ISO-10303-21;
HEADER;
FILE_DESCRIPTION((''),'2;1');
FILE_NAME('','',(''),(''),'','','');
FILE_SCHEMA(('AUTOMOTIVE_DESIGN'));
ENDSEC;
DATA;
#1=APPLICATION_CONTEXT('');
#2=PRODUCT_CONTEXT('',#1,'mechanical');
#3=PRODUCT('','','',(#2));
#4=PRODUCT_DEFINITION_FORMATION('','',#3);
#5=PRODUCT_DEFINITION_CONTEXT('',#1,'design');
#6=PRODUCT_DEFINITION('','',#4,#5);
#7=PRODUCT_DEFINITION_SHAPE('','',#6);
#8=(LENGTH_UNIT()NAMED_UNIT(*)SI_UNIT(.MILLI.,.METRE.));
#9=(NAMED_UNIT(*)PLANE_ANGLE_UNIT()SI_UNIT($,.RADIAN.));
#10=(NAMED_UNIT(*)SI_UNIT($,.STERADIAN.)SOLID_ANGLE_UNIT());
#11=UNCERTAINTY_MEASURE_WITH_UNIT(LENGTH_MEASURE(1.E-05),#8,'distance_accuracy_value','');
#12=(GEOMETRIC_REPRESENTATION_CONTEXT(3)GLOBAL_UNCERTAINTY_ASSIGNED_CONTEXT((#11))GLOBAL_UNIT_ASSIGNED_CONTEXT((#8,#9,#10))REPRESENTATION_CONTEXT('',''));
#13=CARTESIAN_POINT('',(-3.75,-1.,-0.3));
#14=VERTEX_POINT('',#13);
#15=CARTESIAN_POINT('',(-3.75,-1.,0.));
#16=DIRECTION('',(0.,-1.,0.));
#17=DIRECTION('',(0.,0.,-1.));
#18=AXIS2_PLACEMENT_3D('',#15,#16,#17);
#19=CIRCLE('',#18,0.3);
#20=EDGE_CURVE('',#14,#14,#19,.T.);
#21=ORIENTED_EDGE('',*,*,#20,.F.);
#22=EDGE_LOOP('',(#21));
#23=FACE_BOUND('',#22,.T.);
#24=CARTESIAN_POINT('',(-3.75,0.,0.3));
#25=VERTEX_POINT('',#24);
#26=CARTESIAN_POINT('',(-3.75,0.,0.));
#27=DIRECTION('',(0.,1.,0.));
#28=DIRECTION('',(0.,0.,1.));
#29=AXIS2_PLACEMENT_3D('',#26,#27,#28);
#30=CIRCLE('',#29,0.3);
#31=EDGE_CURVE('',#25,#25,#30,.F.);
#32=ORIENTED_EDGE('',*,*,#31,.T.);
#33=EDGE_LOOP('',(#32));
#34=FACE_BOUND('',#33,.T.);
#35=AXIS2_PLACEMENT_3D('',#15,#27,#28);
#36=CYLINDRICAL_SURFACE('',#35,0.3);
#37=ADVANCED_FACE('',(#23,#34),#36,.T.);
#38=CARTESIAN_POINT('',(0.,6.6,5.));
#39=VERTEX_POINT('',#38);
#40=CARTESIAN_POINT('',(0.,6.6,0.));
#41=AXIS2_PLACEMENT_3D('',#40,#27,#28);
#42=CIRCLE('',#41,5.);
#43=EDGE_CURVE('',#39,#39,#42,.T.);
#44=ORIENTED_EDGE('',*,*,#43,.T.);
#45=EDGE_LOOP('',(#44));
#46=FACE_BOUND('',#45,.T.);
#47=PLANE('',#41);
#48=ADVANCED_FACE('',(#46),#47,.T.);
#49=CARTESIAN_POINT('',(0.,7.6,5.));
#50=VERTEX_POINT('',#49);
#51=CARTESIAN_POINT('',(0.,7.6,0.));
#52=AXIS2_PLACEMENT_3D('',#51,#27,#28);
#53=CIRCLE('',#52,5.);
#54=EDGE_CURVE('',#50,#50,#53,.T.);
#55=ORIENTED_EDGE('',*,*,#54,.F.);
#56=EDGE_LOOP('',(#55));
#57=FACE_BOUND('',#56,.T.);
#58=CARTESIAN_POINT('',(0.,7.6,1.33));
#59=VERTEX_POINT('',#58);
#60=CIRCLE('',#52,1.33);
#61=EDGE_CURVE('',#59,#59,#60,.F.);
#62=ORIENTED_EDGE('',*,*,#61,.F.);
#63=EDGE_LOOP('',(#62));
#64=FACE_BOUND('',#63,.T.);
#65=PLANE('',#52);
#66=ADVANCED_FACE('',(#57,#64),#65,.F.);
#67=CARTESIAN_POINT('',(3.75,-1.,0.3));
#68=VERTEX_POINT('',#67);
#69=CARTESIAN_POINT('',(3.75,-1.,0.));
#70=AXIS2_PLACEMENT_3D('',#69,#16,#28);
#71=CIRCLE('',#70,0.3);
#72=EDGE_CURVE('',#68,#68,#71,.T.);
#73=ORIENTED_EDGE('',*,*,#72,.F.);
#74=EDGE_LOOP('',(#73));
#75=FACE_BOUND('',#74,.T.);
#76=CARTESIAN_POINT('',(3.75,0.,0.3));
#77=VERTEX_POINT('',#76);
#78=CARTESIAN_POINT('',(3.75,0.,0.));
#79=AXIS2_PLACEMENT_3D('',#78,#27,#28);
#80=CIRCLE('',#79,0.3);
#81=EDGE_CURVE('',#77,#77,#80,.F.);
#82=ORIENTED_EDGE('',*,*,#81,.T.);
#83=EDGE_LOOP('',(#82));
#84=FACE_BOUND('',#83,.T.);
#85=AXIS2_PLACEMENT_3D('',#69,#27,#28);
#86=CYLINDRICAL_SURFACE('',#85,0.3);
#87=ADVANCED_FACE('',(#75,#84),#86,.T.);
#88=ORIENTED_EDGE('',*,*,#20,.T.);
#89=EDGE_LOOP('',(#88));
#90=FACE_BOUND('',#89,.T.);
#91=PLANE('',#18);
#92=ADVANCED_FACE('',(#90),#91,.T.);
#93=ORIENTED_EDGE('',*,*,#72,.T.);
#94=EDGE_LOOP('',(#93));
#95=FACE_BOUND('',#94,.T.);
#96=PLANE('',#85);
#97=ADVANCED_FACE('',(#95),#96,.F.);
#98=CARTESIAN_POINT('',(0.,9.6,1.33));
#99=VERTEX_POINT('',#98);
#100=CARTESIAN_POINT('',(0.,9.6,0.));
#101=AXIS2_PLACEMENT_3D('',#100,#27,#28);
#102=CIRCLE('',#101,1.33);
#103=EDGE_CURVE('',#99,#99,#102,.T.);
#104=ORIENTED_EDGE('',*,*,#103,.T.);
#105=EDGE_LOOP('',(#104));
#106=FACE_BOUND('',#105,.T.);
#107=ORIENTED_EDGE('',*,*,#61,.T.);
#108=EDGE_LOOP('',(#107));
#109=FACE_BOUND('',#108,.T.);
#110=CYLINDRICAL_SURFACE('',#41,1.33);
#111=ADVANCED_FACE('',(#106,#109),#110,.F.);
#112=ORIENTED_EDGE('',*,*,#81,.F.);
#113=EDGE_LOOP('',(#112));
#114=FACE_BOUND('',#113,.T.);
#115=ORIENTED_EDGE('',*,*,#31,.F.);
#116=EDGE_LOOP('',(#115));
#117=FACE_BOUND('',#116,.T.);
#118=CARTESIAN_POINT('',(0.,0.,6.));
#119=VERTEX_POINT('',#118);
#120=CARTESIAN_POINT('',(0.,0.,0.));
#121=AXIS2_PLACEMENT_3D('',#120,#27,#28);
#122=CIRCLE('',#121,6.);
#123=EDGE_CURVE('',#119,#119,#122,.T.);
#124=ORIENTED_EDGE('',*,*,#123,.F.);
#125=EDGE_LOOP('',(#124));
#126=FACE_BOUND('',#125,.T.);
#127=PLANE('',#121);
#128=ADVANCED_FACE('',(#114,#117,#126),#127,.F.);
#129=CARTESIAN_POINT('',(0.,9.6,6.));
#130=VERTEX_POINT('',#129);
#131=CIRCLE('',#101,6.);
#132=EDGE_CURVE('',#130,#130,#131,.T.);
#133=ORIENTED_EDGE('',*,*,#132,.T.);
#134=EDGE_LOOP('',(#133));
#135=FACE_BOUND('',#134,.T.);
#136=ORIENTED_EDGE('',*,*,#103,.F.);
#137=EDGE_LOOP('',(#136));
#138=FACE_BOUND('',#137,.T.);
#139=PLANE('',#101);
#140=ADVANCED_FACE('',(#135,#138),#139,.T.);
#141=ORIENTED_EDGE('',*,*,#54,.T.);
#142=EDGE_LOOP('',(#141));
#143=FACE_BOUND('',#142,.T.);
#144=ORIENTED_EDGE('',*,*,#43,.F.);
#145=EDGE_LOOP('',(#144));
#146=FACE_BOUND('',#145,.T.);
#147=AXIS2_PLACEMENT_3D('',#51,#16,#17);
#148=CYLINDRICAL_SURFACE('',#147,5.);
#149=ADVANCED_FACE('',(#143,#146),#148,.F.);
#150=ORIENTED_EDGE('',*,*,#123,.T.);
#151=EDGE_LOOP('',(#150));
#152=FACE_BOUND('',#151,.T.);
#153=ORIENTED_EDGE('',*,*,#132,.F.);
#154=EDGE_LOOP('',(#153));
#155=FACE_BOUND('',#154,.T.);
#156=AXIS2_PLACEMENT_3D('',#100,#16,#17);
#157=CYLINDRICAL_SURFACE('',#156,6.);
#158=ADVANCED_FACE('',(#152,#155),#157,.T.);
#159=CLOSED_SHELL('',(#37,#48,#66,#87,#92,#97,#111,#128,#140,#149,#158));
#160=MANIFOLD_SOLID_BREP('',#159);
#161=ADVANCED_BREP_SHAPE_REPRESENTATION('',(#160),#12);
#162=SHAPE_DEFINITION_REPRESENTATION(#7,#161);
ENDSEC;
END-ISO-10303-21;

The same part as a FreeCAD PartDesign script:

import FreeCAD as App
import Part
import Sketcher
from FreeCAD import Vector
Q = App.Units.Quantity

doc = App.newDocument("Part")
body = doc.addObject("PartDesign::Body", "Body")

sketch1 = body.newObject("Sketcher::SketchObject", "Sketch")
sketch1.AttachmentSupport = (doc.getObject("XZ_Plane"), [""])
sketch1.MapMode = "FlatFace"
sketch1.addGeometry(Part.Circle(Vector(0, 0, 0), Vector(0, 0, 1), 6), False)
sketch1.addConstraint([
    Sketcher.Constraint("Coincident", 0, 3, -1, 1),
    Sketcher.Constraint("Diameter", 0, Q("12 mm")),
])
pad1 = body.newObject("PartDesign::Pad", "Pad")
pad1.Profile = sketch1
pad1.Length = 9.6
pad1.Reversed = True

sketch2 = body.newObject("Sketcher::SketchObject", "Sketch001")
sketch2.AttachmentSupport = (doc.getObject("XZ_Plane"), [""])
sketch2.MapMode = "FlatFace"
sketch2.AttachmentOffset = App.Placement(Vector(0, 0, -9.6), App.Rotation())
sketch2.addGeometry(Part.Circle(Vector(0, 0, 0), Vector(0, 0, 1), 1.3), False)
sketch2.addConstraint([
    Sketcher.Constraint("Coincident", 0, 3, -1, 1),
    Sketcher.Constraint("Diameter", 0, Q("2.66 mm")),
])
pocket1 = body.newObject("PartDesign::Pocket", "Pocket")
pocket1.Profile = sketch2
pocket1.Length = 3
pocket1.Reversed = True

sketch3 = body.newObject("Sketcher::SketchObject", "Sketch002")
sketch3.AttachmentSupport = (doc.getObject("XZ_Plane"), [""])
sketch3.MapMode = "FlatFace"
sketch3.AttachmentOffset = App.Placement(Vector(0, 0, -6.6), App.Rotation())
sketch3.addGeometry(Part.Circle(Vector(0, 0, 0), Vector(0, 0, 1), 5), False)
sketch3.addConstraint([
    Sketcher.Constraint("Coincident", 0, 3, -1, 1),
    Sketcher.Constraint("Diameter", 0, Q("10 mm")),
])
pocket2 = body.newObject("PartDesign::Pocket", "Pocket001")
pocket2.Profile = sketch3
pocket2.Length = 1

sketch4 = body.newObject("Sketcher::SketchObject", "Sketch003")
sketch4.AttachmentSupport = (doc.getObject("XZ_Plane"), [""])
sketch4.MapMode = "FlatFace"
sketch4.addGeometry([
    Part.Circle(Vector(-3.75, 0, 0), Vector(0, 0, 1), 0.3),
    Part.Circle(Vector(3.75, 0, 0), Vector(0, 0, 1), 0.3),
], False)
sketch4.addConstraint([
    Sketcher.Constraint("Equal", 0, 1),
    Sketcher.Constraint("Symmetric", 0, 3, 1, 3, -1, 1),
    Sketcher.Constraint("PointOnObject", 0, 3, -1),
    Sketcher.Constraint("Diameter", 0, Q("0.6 mm")),
    Sketcher.Constraint("DistanceX", 0, 3, 1, 3, Q("7.5 mm")),
])
pad2 = body.newObject("PartDesign::Pad", "Pad001")
pad2.Profile = sketch4
pad2.Length = 1

doc.recompute()
